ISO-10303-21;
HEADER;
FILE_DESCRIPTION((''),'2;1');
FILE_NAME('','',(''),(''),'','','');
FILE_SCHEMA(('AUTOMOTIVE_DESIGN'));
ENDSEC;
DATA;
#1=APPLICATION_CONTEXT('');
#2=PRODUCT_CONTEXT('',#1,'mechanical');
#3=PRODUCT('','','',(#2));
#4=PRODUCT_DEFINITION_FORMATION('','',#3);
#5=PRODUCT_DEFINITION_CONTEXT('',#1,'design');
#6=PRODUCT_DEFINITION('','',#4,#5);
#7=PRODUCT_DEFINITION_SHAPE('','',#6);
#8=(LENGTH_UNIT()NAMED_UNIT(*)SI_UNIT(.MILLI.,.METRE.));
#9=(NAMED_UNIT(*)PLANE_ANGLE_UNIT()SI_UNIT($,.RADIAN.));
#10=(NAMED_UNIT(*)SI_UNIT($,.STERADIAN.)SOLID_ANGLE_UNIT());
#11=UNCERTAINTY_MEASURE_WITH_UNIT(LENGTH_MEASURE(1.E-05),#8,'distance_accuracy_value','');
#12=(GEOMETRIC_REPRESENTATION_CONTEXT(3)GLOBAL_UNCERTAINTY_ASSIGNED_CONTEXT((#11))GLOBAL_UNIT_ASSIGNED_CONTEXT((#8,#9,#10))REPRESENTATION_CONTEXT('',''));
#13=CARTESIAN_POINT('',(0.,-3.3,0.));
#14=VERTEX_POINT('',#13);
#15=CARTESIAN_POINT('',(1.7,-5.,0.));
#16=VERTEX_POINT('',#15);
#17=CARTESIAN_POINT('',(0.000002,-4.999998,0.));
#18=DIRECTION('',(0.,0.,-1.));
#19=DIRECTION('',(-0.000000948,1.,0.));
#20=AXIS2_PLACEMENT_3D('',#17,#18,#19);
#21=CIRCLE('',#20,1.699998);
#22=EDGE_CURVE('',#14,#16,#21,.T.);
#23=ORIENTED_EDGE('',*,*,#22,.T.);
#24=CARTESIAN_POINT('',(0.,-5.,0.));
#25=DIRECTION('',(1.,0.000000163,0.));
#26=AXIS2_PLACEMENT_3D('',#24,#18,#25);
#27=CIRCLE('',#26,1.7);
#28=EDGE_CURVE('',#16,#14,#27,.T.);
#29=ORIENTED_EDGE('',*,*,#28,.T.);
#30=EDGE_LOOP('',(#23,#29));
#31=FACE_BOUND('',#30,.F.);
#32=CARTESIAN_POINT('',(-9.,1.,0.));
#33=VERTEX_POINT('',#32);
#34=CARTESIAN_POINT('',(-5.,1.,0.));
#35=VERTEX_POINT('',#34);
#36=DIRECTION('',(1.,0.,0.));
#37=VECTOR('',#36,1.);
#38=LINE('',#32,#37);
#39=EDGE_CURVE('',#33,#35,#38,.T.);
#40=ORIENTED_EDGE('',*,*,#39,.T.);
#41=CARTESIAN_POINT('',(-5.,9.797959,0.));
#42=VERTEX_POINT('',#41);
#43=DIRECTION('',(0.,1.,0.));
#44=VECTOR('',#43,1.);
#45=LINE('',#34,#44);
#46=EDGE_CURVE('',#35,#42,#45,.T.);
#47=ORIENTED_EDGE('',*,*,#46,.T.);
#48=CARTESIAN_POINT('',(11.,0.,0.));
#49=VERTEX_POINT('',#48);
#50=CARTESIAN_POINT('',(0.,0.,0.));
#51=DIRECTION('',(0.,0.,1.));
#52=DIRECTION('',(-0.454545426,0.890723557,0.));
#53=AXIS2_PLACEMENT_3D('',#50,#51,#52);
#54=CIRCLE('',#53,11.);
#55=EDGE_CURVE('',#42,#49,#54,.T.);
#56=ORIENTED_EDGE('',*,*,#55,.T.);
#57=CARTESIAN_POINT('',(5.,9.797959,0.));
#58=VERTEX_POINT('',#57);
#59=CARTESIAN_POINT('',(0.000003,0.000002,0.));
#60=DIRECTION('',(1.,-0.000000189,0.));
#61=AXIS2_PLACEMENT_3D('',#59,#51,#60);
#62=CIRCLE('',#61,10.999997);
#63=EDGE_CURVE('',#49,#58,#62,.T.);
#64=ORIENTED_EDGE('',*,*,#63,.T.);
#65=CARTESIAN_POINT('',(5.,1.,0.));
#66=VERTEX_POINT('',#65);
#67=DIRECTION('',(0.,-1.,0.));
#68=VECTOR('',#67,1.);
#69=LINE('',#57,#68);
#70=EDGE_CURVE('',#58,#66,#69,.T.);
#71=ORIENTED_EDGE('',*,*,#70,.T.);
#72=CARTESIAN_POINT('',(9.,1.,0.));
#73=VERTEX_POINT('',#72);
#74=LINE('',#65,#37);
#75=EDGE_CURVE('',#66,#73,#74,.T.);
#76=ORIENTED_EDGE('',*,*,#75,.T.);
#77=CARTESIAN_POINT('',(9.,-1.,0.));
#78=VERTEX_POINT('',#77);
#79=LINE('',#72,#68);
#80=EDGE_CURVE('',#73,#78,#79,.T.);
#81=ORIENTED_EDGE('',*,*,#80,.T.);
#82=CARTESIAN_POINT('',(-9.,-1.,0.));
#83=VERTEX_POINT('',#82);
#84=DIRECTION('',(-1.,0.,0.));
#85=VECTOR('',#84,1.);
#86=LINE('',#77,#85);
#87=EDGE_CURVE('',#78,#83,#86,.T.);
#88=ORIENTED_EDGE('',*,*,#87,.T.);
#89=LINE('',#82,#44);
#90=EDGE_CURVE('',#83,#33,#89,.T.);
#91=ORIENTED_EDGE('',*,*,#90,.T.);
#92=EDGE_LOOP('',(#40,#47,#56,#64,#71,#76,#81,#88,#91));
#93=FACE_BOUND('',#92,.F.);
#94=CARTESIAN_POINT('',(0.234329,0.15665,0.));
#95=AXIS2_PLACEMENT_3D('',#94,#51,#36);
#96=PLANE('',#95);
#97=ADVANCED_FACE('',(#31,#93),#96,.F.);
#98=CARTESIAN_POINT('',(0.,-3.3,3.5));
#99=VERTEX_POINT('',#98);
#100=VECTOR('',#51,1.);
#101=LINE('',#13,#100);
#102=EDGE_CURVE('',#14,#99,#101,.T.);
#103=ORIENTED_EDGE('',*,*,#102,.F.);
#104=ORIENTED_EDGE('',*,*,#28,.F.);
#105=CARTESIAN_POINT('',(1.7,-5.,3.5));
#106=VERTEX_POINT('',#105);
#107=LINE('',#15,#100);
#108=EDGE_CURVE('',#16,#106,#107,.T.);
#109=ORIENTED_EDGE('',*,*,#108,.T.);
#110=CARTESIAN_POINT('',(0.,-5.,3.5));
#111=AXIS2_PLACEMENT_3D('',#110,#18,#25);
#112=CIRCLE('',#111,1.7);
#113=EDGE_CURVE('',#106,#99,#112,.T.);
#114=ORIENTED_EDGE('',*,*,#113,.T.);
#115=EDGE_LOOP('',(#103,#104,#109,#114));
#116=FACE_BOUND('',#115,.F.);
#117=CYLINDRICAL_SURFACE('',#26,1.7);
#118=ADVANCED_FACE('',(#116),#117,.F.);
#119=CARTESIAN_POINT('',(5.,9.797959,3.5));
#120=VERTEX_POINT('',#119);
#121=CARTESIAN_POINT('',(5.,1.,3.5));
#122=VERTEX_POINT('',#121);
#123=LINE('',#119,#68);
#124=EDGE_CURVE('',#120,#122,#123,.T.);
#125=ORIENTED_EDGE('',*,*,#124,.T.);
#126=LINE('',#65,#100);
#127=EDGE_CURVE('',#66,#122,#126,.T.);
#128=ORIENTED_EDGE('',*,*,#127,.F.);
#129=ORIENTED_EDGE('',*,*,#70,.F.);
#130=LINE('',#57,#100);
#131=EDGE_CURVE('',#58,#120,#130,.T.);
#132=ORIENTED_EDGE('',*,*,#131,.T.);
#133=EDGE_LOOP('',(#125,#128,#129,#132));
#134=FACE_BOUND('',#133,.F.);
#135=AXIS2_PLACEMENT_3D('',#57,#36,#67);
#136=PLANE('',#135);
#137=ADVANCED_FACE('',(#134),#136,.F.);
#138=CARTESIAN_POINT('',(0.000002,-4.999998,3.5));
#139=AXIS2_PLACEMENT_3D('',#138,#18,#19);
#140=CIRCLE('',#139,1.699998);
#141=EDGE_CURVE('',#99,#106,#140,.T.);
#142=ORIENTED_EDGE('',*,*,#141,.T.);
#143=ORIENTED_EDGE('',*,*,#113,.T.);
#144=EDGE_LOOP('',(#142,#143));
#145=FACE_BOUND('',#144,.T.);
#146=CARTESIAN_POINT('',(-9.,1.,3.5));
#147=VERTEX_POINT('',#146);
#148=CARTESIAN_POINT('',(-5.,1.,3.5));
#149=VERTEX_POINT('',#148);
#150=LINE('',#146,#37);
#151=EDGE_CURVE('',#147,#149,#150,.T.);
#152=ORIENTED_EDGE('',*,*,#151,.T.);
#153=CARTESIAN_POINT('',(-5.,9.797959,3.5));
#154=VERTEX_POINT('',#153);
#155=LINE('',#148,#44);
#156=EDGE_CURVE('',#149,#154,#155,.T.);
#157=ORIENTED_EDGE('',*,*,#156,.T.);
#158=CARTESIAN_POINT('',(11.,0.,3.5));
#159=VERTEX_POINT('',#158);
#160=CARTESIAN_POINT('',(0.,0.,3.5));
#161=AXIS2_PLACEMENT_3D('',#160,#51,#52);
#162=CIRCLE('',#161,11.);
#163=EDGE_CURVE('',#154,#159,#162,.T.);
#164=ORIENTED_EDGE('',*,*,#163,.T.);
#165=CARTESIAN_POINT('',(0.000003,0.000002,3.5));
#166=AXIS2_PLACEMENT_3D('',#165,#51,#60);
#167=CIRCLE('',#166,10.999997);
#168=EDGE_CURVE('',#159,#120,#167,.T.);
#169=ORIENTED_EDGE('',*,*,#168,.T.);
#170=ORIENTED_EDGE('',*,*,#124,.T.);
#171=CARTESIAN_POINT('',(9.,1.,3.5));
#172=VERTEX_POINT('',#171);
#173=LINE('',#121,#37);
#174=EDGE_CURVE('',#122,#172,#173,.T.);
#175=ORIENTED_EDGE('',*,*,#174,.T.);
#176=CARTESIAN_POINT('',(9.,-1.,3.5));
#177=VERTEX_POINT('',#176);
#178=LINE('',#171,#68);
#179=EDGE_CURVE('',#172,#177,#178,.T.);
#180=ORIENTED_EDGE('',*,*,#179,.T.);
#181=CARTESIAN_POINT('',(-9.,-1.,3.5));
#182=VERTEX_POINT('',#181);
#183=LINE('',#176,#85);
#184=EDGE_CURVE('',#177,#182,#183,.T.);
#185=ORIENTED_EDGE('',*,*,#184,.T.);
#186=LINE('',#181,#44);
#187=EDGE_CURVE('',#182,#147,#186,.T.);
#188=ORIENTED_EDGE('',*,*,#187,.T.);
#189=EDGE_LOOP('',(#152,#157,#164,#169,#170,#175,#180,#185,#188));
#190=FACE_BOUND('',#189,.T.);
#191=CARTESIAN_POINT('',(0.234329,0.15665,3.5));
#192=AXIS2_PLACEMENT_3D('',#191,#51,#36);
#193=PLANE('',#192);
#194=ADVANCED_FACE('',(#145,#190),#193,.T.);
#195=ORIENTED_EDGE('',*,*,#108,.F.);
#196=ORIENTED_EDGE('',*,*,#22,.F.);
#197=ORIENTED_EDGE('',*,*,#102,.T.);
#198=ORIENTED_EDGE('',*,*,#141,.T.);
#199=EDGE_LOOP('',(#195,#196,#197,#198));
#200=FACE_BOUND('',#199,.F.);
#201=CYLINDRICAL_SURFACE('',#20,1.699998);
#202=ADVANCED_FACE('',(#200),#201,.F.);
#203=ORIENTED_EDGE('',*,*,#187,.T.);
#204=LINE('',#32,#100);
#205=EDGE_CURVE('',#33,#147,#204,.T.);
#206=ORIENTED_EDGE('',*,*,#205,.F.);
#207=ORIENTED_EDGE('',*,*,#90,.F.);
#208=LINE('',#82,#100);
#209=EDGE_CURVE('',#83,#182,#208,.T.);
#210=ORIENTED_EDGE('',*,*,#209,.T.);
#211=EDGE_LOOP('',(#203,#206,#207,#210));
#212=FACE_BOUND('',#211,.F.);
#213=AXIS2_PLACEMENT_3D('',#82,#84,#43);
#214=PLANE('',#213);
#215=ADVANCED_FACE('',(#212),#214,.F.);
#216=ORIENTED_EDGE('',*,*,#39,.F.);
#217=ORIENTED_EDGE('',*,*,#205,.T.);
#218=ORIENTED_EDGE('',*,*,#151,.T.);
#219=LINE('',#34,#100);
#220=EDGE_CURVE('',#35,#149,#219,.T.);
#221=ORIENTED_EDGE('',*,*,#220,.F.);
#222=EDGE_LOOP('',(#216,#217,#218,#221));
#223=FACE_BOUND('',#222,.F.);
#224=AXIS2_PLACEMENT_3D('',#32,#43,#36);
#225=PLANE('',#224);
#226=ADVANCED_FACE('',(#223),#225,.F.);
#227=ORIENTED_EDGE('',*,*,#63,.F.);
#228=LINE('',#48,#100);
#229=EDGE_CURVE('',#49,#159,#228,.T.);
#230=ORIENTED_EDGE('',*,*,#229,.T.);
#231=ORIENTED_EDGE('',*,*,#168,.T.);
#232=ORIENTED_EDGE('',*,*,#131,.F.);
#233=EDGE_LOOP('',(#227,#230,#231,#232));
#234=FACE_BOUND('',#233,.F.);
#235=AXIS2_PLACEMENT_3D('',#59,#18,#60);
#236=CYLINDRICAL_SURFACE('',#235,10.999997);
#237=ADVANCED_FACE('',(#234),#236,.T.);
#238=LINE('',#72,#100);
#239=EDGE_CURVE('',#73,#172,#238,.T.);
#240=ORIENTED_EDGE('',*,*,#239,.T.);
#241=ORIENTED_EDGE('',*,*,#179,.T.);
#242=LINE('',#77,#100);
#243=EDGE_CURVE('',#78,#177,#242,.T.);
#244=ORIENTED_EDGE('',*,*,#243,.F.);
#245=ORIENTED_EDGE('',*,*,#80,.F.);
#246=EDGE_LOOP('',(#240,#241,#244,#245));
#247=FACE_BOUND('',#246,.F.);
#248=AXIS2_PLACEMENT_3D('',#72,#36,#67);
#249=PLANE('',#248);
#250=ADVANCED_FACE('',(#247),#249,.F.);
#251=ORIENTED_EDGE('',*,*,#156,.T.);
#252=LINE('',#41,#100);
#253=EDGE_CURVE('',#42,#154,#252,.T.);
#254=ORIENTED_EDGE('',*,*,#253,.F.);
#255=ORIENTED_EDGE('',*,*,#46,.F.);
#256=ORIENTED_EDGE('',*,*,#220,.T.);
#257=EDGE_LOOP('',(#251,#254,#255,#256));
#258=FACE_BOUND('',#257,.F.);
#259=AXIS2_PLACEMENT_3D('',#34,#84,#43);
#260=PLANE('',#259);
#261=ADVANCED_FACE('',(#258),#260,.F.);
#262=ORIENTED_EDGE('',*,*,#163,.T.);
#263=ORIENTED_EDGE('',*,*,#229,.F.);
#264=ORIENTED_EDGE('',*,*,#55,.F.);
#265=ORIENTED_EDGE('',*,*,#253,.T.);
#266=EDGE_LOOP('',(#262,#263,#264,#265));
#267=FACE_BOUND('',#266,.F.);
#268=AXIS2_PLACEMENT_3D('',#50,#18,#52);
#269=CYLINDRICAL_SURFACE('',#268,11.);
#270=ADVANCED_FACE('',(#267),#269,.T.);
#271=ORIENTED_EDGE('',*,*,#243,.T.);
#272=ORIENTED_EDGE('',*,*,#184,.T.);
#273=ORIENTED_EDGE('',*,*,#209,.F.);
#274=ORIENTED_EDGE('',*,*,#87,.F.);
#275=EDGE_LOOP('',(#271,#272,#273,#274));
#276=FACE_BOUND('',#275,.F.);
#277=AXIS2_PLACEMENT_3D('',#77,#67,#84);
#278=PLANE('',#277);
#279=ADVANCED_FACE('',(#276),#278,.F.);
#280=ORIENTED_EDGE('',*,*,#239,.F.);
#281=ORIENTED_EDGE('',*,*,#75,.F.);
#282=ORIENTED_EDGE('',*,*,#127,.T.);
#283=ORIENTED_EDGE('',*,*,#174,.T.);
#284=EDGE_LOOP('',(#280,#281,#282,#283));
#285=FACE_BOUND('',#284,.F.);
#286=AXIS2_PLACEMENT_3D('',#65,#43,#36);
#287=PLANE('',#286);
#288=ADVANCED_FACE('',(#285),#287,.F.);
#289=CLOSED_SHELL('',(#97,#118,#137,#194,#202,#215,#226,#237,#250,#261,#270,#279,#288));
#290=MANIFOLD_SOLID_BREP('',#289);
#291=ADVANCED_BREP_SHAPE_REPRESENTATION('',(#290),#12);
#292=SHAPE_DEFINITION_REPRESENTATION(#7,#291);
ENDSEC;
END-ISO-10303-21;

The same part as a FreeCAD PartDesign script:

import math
import FreeCAD as App
import Part
import Sketcher
from FreeCAD import Vector

doc = App.newDocument("Part")
params = doc.addObject("Spreadsheet::Sheet", "Params")
for row, (alias, value) in enumerate([
    ("sketch1_radius", "11 mm"),
    ("sketch1_radius2", "1.699998 mm"),
    ("sketch1_width", "4 mm"),
    ("sketch1_width2", "18 mm"),
    ("sketch1_height", "2 mm"),
    ("pad1_length", "3.5 mm"),
], start=1):
    params.set(f"A{row}", alias)
    params.set(f"B{row}", "=" + value)
    params.setAlias(f"B{row}", alias)

body = doc.addObject("PartDesign::Body", "Body")

# Sketch on XY plane
sketch1 = doc.addObject("Sketcher::SketchObject", "Sketch")
body.addObject(sketch1)
sketch1.AttachmentSupport = (doc.XY_Plane, [""])
sketch1.MapMode = "FlatFace"
sketch1.addGeometry([
    Part.ArcOfCircle(Part.Circle(Vector(0, 0, 0), Vector(0, 0, 1), 11), math.radians(117), math.radians(360)),  # 0
    Part.ArcOfCircle(Part.Circle(Vector(0, 0, 0), Vector(0, 0, 1), 11), math.radians(0), math.radians(63)),  # 1
    Part.LineSegment(Vector(5, 9.8, 0), Vector(5, 1, 0)),  # 2
    Part.LineSegment(Vector(5, 1, 0), Vector(9, 1, 0)),  # 3
    Part.LineSegment(Vector(9, 1, 0), Vector(9, -1, 0)),  # 4
    Part.LineSegment(Vector(9, -1, 0), Vector(-9, -1, 0)),  # 5
    Part.LineSegment(Vector(-9, -1, 0), Vector(-9, 1, 0)),  # 6
    Part.LineSegment(Vector(-9, 1, 0), Vector(-5, 1, 0)),  # 7
    Part.LineSegment(Vector(-5, 1, 0), Vector(-5, 9.8, 0)),  # 8
    Part.ArcOfCircle(Part.Circle(Vector(0, -5, 0), Vector(0, 0, 1), 1.7), math.radians(0), math.radians(90)),  # 9
    Part.ArcOfCircle(Part.Circle(Vector(0, -5, 0), Vector(0, 0, 1), 1.7), math.radians(90), math.radians(360)),  # 10
], False)
sketch1.addConstraint([
    Sketcher.Constraint("Tangent", 0, 2, 1, 1),
    Sketcher.Constraint("Coincident", 1, 2, 2, 1),
    Sketcher.Constraint("Coincident", 2, 2, 3, 1),
    Sketcher.Constraint("Coincident", 3, 2, 4, 1),
    Sketcher.Constraint("Coincident", 4, 2, 5, 1),
    Sketcher.Constraint("Coincident", 5, 2, 6, 1),
    Sketcher.Constraint("Coincident", 6, 2, 7, 1),
    Sketcher.Constraint("Coincident", 7, 2, 8, 1),
    Sketcher.Constraint("Coincident", 8, 2, 0, 1),
    Sketcher.Constraint("Tangent", 9, 1, 10, 2),
    Sketcher.Constraint("Coincident", 10, 1, 9, 2),
    Sketcher.Constraint("Vertical", 2),
    Sketcher.Constraint("Horizontal", 3),
    Sketcher.Constraint("Vertical", 4),
    Sketcher.Constraint("Horizontal", 5),
    Sketcher.Constraint("Vertical", 6),
    Sketcher.Constraint("Horizontal", 7),
    Sketcher.Constraint("Vertical", 8),
    Sketcher.Constraint("Coincident", 0, 3, -1, 1),
    Sketcher.Constraint("Symmetric", 3, 2, 5, 2, -1, 1),
    Sketcher.Constraint("Symmetric", 2, 2, 7, 2, -2),
    Sketcher.Constraint("PointOnObject", 9, 3, -2),
    Sketcher.Constraint("PointOnObject", 0, 2, -1),
    Sketcher.Constraint("PointOnObject", 10, 1, -2),
    Sketcher.Constraint("Horizontal", 1, 2, 8, 2),
    Sketcher.Constraint("Horizontal", 10, 3, 9, 1),
    Sketcher.Constraint("Radius", 0, 11.0),
    Sketcher.Constraint("Radius", 9, 1.699998),
    Sketcher.Constraint("DistanceX", 3, 1, 3, 2, 4.0),
    Sketcher.Constraint("DistanceX", 5, 2, 5, 1, 18.0),
    Sketcher.Constraint("DistanceY", 4, 2, 4, 1, 2.0),
    Sketcher.Constraint("DistanceY", 9, 3, -1, 1, 4.999998),
])
sketch1.setExpression("Constraints[26]", "Params.sketch1_radius")
sketch1.setExpression("Constraints[27]", "Params.sketch1_radius2")
sketch1.setExpression("Constraints[28]", "Params.sketch1_width")
sketch1.setExpression("Constraints[29]", "Params.sketch1_width2")
sketch1.setExpression("Constraints[30]", "Params.sketch1_height")
pad1 = doc.addObject("PartDesign::Pad", "Pad")
body.addObject(pad1)
pad1.Profile = sketch1
pad1.setExpression("Length", "Params.pad1_length")

doc.recompute()
